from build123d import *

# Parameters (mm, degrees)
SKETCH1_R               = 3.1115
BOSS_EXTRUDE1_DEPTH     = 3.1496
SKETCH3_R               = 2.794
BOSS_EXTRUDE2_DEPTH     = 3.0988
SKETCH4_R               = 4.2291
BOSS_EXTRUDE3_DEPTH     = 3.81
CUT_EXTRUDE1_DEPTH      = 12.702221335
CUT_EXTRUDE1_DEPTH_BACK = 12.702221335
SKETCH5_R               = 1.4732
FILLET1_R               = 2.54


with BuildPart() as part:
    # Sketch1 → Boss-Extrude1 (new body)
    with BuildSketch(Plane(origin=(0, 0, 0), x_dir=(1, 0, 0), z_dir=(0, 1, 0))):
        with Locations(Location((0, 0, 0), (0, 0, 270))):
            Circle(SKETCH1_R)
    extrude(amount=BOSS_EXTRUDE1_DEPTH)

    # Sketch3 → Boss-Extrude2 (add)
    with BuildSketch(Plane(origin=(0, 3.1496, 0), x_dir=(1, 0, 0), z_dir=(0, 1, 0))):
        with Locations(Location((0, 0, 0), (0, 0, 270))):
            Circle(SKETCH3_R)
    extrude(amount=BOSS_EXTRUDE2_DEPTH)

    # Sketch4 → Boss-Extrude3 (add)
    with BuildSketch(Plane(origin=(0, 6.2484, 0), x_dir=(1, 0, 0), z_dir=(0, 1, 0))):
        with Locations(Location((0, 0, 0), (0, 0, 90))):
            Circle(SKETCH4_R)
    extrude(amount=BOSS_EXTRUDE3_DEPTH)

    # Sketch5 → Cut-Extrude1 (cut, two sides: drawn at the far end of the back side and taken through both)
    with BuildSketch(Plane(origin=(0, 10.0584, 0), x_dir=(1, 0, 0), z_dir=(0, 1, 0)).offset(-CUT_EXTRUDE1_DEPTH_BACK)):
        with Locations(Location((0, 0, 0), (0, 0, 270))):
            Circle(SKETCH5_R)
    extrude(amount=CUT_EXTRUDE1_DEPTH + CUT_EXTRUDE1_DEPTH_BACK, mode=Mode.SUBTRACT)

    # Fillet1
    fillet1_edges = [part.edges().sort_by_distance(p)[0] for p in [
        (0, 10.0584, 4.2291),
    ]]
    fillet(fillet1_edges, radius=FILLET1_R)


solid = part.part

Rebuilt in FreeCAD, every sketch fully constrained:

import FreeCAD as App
import Part
import Sketcher
Q = App.Units.Quantity


def edges_at(feature, points):
    """Names of the edges that pass closest to the given points."""
    edges = feature.Shape.Edges
    near = lambda p: min(range(len(edges)), key=lambda i: edges[i].distToShape(Part.Vertex(*p))[0])
    return sorted({f"Edge{near(p) + 1}" for p in points})

doc = App.newDocument("Part")
params = doc.addObject("Spreadsheet::Sheet", "Params")
for row, (alias, value) in enumerate([
    ("sketch1_diameter", "0.245 in"),
    ("pad1_length", "0.124 in"),
    ("sketch2_diameter", "0.22 in"),
    ("pad2_length", "0.122 in"),
    ("sketch3_diameter", "0.333 in"),
    ("pad3_length", "0.15 in"),
    ("sketch4_diameter", "0.116 in"),
    ("fillet_radius", "0.1 in"),
], start=1):
    params.set(f"A{row}", alias)
    params.set(f"B{row}", "=" + value)
    params.setAlias(f"B{row}", alias)

body = doc.addObject("PartDesign::Body", "Body")

# Sketch on XZ plane
sketch1 = body.newObject("Sketcher::SketchObject", "Sketch")
sketch1.AttachmentSupport = (doc.getObject("XZ_Plane"), [""])
sketch1.MapMode = "FlatFace"
sketch1.addGeometry(Part.Circle(App.Vector(0, 0, 0), App.Vector(0, 0, 1), 3.1), False)
sketch1.addConstraint(Sketcher.Constraint("Coincident", 0, 3, -1, 1))
sketch1.addConstraint(Sketcher.Constraint("Diameter", 0, Q("0.245 in")))
sketch1.setExpression("Constraints[1]", "Params.sketch1_diameter")
pad1 = body.newObject("PartDesign::Pad", "Pad")
pad1.Profile = sketch1
pad1.setExpression("Length", "Params.pad1_length")
pad1.Reversed = True

# Sketch on XZ plane
sketch2 = body.newObject("Sketcher::SketchObject", "Sketch001")
sketch2.AttachmentSupport = (doc.getObject("XZ_Plane"), [""])
sketch2.MapMode = "FlatFace"
sketch2.AttachmentOffset = App.Placement(App.Vector(0, 0, -0.124 * 25.4), App.Rotation())
sketch2.addGeometry(Part.Circle(App.Vector(0, 0, 0), App.Vector(0, 0, 1), 2.8), False)
sketch2.addConstraint(Sketcher.Constraint("Coincident", 0, 3, -1, 1))
sketch2.addConstraint(Sketcher.Constraint("Diameter", 0, Q("0.22 in")))
sketch2.setExpression("Constraints[1]", "Params.sketch2_diameter")
pad2 = body.newObject("PartDesign::Pad", "Pad001")
pad2.Profile = sketch2
pad2.setExpression("Length", "Params.pad2_length")
pad2.Reversed = True

# Sketch on XZ plane
sketch3 = body.newObject("Sketcher::SketchObject", "Sketch002")
sketch3.AttachmentSupport = (doc.getObject("XZ_Plane"), [""])
sketch3.MapMode = "FlatFace"
sketch3.AttachmentOffset = App.Placement(App.Vector(0, 0, -0.246 * 25.4), App.Rotation())
sketch3.addGeometry(Part.Circle(App.Vector(0, 0, 0), App.Vector(0, 0, 1), 4.2), False)
sketch3.addConstraint(Sketcher.Constraint("Coincident", 0, 3, -1, 1))
sketch3.addConstraint(Sketcher.Constraint("Diameter", 0, Q("0.333 in")))
sketch3.setExpression("Constraints[1]", "Params.sketch3_diameter")
pad3 = body.newObject("PartDesign::Pad", "Pad002")
pad3.Profile = sketch3
pad3.setExpression("Length", "Params.pad3_length")
pad3.Reversed = True

# Sketch on XZ plane
sketch4 = body.newObject("Sketcher::SketchObject", "Sketch003")
sketch4.AttachmentSupport = (doc.getObject("XZ_Plane"), [""])
sketch4.MapMode = "FlatFace"
sketch4.AttachmentOffset = App.Placement(App.Vector(0, 0, -0.396 * 25.4), App.Rotation())
sketch4.addGeometry(Part.Circle(App.Vector(0, 0, 0), App.Vector(0, 0, 1), 1.5), False)
sketch4.addConstraint(Sketcher.Constraint("Coincident", 0, 3, -1, 1))
sketch4.addConstraint(Sketcher.Constraint("Diameter", 0, Q("0.116 in")))
sketch4.setExpression("Constraints[1]", "Params.sketch4_diameter")
pocket1 = body.newObject("PartDesign::Pocket", "Pocket")
pocket1.Profile = sketch4
pocket1.Type = "ThroughAll"
pocket1.Midplane = True
doc.recompute()

fillet = body.newObject("PartDesign::Fillet", "Fillet")
fillet.Base = (pocket1, edges_at(pocket1, [(0, 10.058, 4.229)]))
fillet.setExpression("Radius", "Params.fillet_radius")

doc.recompute()
